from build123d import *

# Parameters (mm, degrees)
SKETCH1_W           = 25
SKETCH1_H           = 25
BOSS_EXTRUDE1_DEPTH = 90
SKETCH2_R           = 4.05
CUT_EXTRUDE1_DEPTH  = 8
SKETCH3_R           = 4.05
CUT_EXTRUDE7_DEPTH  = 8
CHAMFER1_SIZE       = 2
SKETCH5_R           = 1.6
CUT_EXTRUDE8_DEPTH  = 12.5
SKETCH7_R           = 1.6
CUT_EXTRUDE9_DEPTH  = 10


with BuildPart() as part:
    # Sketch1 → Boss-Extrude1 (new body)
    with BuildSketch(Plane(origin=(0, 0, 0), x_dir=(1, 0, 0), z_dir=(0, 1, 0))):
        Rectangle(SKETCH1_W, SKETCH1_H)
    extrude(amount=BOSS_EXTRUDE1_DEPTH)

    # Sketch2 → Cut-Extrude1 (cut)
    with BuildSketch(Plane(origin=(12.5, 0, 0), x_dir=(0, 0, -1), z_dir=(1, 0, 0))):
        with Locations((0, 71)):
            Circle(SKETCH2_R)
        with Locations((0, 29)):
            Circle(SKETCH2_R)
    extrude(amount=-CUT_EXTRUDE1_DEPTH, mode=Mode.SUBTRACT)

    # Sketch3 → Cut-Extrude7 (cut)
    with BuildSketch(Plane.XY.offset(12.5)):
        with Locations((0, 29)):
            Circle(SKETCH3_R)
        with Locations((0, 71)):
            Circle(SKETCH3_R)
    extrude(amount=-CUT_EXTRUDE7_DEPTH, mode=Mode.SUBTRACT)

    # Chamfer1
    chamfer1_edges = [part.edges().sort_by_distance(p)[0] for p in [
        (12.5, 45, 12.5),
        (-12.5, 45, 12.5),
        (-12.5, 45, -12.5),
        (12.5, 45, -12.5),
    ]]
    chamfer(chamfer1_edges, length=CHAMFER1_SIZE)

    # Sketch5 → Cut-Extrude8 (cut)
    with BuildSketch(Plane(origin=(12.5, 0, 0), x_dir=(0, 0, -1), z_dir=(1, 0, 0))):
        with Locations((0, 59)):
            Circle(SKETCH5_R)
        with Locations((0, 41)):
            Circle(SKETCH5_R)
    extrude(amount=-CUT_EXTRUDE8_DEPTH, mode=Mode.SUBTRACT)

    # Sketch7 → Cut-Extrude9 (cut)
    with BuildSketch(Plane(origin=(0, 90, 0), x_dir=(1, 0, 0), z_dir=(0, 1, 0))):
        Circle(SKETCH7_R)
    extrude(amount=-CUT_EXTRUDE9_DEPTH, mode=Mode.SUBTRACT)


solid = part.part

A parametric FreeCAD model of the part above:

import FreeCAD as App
import Part
import Sketcher
from FreeCAD import Vector


def edges_at(feature, points):
    """Names of the edges that pass closest to the given points."""
    edges = feature.Shape.Edges
    near = lambda p: min(range(len(edges)), key=lambda i: edges[i].distToShape(Part.Vertex(*p))[0])
    return sorted({f"Edge{near(p) + 1}" for p in points})

doc = App.newDocument("Part")
body = doc.addObject("PartDesign::Body", "Body")

# Sketch on XZ plane
sketch1 = body.newObject("Sketcher::SketchObject", "Sketch")
sketch1.AttachmentSupport = (doc.getObject("XZ_Plane"), [""])
sketch1.MapMode = "FlatFace"
sketch1.addGeometry([
    Part.LineSegment(Vector(-12, -12, 0), Vector(-12, 12, 0)),
    Part.LineSegment(Vector(-12, 12, 0), Vector(12, 12, 0)),
    Part.LineSegment(Vector(12, 12, 0), Vector(12, -12, 0)),
    Part.LineSegment(Vector(12, -12, 0), Vector(-12, -12, 0)),
], False)
sketch1.addConstraint([
    Sketcher.Constraint("Coincident", 0, 2, 1, 1),
    Sketcher.Constraint("Coincident", 1, 2, 2, 1),
    Sketcher.Constraint("Coincident", 2, 2, 3, 1),
    Sketcher.Constraint("Coincident", 3, 2, 0, 1),
    Sketcher.Constraint("Vertical", 0),
    Sketcher.Constraint("Horizontal", 1),
    Sketcher.Constraint("Vertical", 2),
    Sketcher.Constraint("Horizontal", 3),
    Sketcher.Constraint("Symmetric", 0, 2, 2, 2, -1, 1),
    Sketcher.Constraint("Equal", 3, 0),
    Sketcher.Constraint("DistanceX", 1, 1, 1, 2, 25.0),
])
pad1 = body.newObject("PartDesign::Pad", "Pad")
pad1.Profile = sketch1
pad1.Length = 90
pad1.Reversed = True

# Sketch on YZ plane
sketch2 = body.newObject("Sketcher::SketchObject", "Sketch001")
sketch2.AttachmentSupport = (doc.getObject("YZ_Plane"), [""])
sketch2.MapMode = "FlatFace"
sketch2.AttachmentOffset = App.Placement(Vector(0, 0, 12.5), App.Rotation())
sketch2.addGeometry([
    Part.Circle(Vector(71, 0, 0), Vector(0, 0, 1), 4),
    Part.Circle(Vector(29, 0, 0), Vector(0, 0, 1), 4),
], False)
sketch2.addConstraint([
    Sketcher.Constraint("Equal", 0, 1),
    Sketcher.Constraint("PointOnObject", 0, 3, -1),
    Sketcher.Constraint("PointOnObject", 1, 3, -1),
    Sketcher.Constraint("Diameter", 0, 8.1),
    Sketcher.Constraint("DistanceX", -1, 1, 0, 3, 71.0),
    Sketcher.Constraint("DistanceX", -1, 1, 1, 3, 29.0),
])
pocket1 = body.newObject("PartDesign::Pocket", "Pocket")
pocket1.Profile = sketch2
pocket1.Length = 8

# Sketch on XY plane
sketch3 = body.newObject("Sketcher::SketchObject", "Sketch002")
sketch3.AttachmentSupport = (doc.getObject("XY_Plane"), [""])
sketch3.MapMode = "FlatFace"
sketch3.AttachmentOffset = App.Placement(Vector(0, 0, 12.5), App.Rotation())
sketch3.addGeometry([
    Part.Circle(Vector(0, 29, 0), Vector(0, 0, 1), 4),
    Part.Circle(Vector(0, 71, 0), Vector(0, 0, 1), 4),
], False)
sketch3.addConstraint([
    Sketcher.Constraint("Equal", 0, 1),
    Sketcher.Constraint("PointOnObject", 0, 3, -2),
    Sketcher.Constraint("PointOnObject", 1, 3, -2),
    Sketcher.Constraint("Diameter", 0, 8.1),
    Sketcher.Constraint("DistanceY", -1, 1, 0, 3, 29.0),
    Sketcher.Constraint("DistanceY", -1, 1, 1, 3, 71.0),
])
pocket2 = body.newObject("PartDesign::Pocket", "Pocket001")
pocket2.Profile = sketch3
pocket2.Length = 8
doc.recompute()

chamfer = body.newObject("PartDesign::Chamfer", "Chamfer")
chamfer.Base = (pocket2, edges_at(pocket2, [
    (12.5, 45, 12.5),
    (-12.5, 45, 12.5),
    (-12.5, 45, -12.5),
    (12.5, 45, -12.5),
]))
chamfer.Size = 2

# Sketch on YZ plane
sketch4 = body.newObject("Sketcher::SketchObject", "Sketch003")
sketch4.AttachmentSupport = (doc.getObject("YZ_Plane"), [""])
sketch4.MapMode = "FlatFace"
sketch4.AttachmentOffset = App.Placement(Vector(0, 0, 12.5), App.Rotation())
sketch4.addGeometry([
    Part.Circle(Vector(59, 0, 0), Vector(0, 0, 1), 1.6),
    Part.Circle(Vector(41, 0, 0), Vector(0, 0, 1), 1.6),
], False)
sketch4.addConstraint([
    Sketcher.Constraint("Equal", 0, 1),
    Sketcher.Constraint("PointOnObject", 0, 3, -1),
    Sketcher.Constraint("PointOnObject", 1, 3, -1),
    Sketcher.Constraint("Diameter", 0, 3.2),
    Sketcher.Constraint("DistanceX", -1, 1, 0, 3, 59.0),
    Sketcher.Constraint("DistanceX", -1, 1, 1, 3, 41.0),
])
pocket3 = body.newObject("PartDesign::Pocket", "Pocket002")
pocket3.Profile = sketch4
pocket3.Length = 12.5

# Sketch on XZ plane
sketch5 = body.newObject("Sketcher::SketchObject", "Sketch004")
sketch5.AttachmentSupport = (doc.getObject("XZ_Plane"), [""])
sketch5.MapMode = "FlatFace"
sketch5.AttachmentOffset = App.Placement(Vector(0, 0, -90), App.Rotation())
sketch5.addGeometry(Part.Circle(Vector(0, 0, 0), Vector(0, 0, 1), 1.6), False)
sketch5.addConstraint([
    Sketcher.Constraint("Coincident", 0, 3, -1, 1),
    Sketcher.Constraint("Diameter", 0, 3.2),
])
pocket4 = body.newObject("PartDesign::Pocket", "Pocket003")
pocket4.Profile = sketch5
pocket4.Length = 10
pocket4.Reversed = True

doc.recompute()
